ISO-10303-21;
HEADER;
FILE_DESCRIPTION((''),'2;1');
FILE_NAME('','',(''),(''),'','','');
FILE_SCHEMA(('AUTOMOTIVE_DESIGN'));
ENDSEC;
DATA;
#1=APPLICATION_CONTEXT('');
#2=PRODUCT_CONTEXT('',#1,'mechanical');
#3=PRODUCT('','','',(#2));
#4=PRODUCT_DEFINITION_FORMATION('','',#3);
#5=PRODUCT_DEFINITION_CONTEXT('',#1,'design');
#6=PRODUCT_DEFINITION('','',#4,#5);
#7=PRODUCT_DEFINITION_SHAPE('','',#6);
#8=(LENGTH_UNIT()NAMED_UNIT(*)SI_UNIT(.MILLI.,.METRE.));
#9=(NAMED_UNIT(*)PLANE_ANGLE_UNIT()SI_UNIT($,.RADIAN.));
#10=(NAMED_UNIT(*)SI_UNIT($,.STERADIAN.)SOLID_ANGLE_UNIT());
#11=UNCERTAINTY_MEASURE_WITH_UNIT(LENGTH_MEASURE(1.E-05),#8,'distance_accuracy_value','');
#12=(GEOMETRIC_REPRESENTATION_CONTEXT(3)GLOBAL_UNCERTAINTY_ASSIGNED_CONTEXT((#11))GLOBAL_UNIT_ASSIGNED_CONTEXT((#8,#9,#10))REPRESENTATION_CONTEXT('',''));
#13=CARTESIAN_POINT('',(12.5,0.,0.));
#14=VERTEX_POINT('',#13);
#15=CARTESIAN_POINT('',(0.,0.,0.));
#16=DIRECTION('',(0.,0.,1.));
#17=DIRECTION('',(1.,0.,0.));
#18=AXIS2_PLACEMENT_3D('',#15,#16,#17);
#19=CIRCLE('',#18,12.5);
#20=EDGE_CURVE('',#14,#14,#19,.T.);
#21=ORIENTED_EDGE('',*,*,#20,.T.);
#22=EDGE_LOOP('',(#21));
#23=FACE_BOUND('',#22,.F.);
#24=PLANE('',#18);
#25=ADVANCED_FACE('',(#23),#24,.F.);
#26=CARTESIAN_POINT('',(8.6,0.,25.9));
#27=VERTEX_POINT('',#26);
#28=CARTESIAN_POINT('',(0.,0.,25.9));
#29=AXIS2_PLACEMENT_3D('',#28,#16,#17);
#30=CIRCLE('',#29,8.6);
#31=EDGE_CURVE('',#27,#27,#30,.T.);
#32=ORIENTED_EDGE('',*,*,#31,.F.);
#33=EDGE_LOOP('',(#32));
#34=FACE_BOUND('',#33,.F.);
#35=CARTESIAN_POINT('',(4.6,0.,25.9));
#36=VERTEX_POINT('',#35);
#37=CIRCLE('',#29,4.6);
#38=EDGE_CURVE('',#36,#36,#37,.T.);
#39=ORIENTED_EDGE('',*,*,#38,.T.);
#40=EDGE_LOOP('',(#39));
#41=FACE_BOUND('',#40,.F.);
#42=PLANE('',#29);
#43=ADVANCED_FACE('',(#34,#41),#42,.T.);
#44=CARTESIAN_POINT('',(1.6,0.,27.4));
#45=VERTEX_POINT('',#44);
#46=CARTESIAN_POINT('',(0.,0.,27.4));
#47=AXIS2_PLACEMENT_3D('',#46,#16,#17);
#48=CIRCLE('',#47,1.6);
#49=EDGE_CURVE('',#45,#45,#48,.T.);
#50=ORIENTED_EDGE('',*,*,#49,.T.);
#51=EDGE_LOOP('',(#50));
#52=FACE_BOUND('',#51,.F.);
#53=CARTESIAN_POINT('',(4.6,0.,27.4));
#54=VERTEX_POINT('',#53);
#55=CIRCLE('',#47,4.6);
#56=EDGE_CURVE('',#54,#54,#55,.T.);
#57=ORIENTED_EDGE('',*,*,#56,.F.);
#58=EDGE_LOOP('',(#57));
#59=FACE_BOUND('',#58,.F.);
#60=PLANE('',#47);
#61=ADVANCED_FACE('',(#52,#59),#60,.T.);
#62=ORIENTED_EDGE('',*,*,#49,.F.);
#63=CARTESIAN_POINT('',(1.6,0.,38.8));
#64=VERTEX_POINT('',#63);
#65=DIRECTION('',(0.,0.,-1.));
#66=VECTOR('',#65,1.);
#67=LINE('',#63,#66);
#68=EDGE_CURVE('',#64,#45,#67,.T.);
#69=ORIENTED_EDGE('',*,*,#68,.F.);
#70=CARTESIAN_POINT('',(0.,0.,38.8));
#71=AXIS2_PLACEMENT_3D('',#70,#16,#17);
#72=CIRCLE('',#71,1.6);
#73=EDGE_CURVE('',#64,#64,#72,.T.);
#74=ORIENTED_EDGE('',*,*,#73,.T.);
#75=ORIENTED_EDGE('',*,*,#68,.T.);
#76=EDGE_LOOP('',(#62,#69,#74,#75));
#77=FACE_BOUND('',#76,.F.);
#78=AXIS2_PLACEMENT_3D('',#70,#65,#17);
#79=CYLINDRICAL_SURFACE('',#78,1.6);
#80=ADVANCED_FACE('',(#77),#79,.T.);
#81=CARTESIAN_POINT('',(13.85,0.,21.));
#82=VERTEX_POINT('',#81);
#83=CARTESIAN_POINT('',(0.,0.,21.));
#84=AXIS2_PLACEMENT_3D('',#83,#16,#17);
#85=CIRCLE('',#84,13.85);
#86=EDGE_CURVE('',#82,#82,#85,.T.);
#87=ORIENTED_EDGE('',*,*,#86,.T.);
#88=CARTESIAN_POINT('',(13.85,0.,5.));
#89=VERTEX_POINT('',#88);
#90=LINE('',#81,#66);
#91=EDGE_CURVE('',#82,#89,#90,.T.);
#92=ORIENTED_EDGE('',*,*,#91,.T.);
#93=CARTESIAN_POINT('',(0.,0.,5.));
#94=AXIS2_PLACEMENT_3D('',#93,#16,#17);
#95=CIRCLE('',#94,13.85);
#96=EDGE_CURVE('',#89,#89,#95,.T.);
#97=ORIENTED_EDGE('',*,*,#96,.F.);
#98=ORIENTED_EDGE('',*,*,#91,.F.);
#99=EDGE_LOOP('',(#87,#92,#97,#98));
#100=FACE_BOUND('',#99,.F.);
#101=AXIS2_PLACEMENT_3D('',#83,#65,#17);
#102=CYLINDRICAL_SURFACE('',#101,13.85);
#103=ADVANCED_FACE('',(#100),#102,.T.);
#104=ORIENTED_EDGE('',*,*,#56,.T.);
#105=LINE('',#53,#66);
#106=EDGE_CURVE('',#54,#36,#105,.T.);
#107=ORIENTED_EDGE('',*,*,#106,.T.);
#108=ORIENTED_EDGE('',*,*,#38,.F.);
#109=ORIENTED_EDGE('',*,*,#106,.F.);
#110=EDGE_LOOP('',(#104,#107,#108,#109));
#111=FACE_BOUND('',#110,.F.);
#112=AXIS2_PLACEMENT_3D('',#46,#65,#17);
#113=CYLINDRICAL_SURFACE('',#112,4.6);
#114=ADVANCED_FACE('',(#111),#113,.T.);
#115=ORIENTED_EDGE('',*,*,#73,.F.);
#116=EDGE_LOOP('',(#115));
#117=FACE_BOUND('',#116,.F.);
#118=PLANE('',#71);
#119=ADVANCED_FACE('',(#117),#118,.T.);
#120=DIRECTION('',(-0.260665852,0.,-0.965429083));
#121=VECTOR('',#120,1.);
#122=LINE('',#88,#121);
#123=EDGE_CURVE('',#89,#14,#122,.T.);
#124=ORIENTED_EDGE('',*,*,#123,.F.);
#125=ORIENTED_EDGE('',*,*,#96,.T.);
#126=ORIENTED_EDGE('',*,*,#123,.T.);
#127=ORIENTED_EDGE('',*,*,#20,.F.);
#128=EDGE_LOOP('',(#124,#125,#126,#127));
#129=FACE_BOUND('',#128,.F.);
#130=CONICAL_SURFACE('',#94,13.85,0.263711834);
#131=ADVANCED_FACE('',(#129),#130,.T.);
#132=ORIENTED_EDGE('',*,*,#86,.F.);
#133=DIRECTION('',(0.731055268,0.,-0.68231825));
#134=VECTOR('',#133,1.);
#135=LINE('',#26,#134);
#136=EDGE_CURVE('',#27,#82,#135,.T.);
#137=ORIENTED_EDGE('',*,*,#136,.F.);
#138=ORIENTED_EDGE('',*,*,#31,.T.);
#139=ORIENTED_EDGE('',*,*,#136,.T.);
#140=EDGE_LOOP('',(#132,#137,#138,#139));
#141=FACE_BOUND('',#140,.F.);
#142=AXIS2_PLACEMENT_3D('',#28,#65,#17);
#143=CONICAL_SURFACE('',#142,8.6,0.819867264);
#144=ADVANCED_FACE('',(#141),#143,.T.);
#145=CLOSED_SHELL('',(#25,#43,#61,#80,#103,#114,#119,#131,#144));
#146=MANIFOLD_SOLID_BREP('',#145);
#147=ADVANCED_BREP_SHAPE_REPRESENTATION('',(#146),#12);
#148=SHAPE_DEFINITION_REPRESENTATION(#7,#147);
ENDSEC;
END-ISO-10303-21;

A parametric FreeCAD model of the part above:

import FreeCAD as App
import Part
import Sketcher
from FreeCAD import Vector
Q = App.Units.Quantity


def add_polygon(sketch, points):
    """Adds a closed chain of lines whose ends are joined by coincident constraints."""
    first, n = sketch.GeometryCount, len(points)
    for a, b in zip(points, points[1:] + points[:1]):
        sketch.addGeometry(Part.LineSegment(App.Vector(*a, 0), App.Vector(*b, 0)), False)
    for i in range(n):
        sketch.addConstraint(Sketcher.Constraint("Coincident", first + i, 2, first + (i + 1) % n, 1))

doc = App.newDocument("Part")
body = doc.addObject("PartDesign::Body", "Body")

# Sketch on XZ plane
sketch1 = doc.addObject("Sketcher::SketchObject", "Sketch")
body.addObject(sketch1)
sketch1.AttachmentSupport = (doc.XZ_Plane, [""])
sketch1.MapMode = "FlatFace"
add_polygon(sketch1, [(0, 38.8), (0, 0), (12.5, 0), (13.8, 5), (13.8, 21), (8.6, 25.9), (4.6, 25.9), (4.6, 27.4), (1.6, 27.4), (1.6, 38.8)])  # lines 0-9
sketch1.addConstraint(Sketcher.Constraint("Vertical", 0))
sketch1.addConstraint(Sketcher.Constraint("Horizontal", 1))
sketch1.addConstraint(Sketcher.Constraint("Vertical", 3))
sketch1.addConstraint(Sketcher.Constraint("Horizontal", 5))
sketch1.addConstraint(Sketcher.Constraint("Vertical", 6))
sketch1.addConstraint(Sketcher.Constraint("Horizontal", 7))
sketch1.addConstraint(Sketcher.Constraint("Vertical", 8))
sketch1.addConstraint(Sketcher.Constraint("Horizontal", 9))
sketch1.addConstraint(Sketcher.Constraint("Coincident", 0, 2, -1, 1))
sketch1.addConstraint(Sketcher.Constraint("DistanceX", 5, 2, 5, 1, Q("4 mm")))
sketch1.addConstraint(Sketcher.Constraint("DistanceX", 7, 2, 7, 1, Q("3 mm")))
sketch1.addConstraint(Sketcher.Constraint("DistanceY", 3, 1, 3, 2, Q("16 mm")))
sketch1.addConstraint(Sketcher.Constraint("DistanceX", 1, 1, 1, 2, Q("12.5 mm")))
sketch1.addConstraint(Sketcher.Constraint("DistanceX", 9, 2, 9, 1, Q("1.6 mm")))
sketch1.addConstraint(Sketcher.Constraint("DistanceY", 0, 2, 0, 1, Q("38.8 mm")))
sketch1.addConstraint(Sketcher.Constraint("DistanceY", 6, 1, 6, 2, Q("1.5 mm")))
sketch1.addConstraint(Sketcher.Constraint("DistanceY", 8, 1, 8, 2, Q("11.4 mm")))
sketch1.addConstraint(Sketcher.Constraint("DistanceY", -1, 1, 2, 2, Q("5 mm")))
sketch1.addConstraint(Sketcher.Constraint("DistanceX", -1, 1, 2, 2, Q("13.85 mm")))
revolution = doc.addObject("PartDesign::Revolution", "Revolution")
body.addObject(revolution)
revolution.Profile = sketch1
revolution.ReferenceAxis = (sketch1, ["V_Axis"])
revolution.Angle = 360

doc.recompute()
